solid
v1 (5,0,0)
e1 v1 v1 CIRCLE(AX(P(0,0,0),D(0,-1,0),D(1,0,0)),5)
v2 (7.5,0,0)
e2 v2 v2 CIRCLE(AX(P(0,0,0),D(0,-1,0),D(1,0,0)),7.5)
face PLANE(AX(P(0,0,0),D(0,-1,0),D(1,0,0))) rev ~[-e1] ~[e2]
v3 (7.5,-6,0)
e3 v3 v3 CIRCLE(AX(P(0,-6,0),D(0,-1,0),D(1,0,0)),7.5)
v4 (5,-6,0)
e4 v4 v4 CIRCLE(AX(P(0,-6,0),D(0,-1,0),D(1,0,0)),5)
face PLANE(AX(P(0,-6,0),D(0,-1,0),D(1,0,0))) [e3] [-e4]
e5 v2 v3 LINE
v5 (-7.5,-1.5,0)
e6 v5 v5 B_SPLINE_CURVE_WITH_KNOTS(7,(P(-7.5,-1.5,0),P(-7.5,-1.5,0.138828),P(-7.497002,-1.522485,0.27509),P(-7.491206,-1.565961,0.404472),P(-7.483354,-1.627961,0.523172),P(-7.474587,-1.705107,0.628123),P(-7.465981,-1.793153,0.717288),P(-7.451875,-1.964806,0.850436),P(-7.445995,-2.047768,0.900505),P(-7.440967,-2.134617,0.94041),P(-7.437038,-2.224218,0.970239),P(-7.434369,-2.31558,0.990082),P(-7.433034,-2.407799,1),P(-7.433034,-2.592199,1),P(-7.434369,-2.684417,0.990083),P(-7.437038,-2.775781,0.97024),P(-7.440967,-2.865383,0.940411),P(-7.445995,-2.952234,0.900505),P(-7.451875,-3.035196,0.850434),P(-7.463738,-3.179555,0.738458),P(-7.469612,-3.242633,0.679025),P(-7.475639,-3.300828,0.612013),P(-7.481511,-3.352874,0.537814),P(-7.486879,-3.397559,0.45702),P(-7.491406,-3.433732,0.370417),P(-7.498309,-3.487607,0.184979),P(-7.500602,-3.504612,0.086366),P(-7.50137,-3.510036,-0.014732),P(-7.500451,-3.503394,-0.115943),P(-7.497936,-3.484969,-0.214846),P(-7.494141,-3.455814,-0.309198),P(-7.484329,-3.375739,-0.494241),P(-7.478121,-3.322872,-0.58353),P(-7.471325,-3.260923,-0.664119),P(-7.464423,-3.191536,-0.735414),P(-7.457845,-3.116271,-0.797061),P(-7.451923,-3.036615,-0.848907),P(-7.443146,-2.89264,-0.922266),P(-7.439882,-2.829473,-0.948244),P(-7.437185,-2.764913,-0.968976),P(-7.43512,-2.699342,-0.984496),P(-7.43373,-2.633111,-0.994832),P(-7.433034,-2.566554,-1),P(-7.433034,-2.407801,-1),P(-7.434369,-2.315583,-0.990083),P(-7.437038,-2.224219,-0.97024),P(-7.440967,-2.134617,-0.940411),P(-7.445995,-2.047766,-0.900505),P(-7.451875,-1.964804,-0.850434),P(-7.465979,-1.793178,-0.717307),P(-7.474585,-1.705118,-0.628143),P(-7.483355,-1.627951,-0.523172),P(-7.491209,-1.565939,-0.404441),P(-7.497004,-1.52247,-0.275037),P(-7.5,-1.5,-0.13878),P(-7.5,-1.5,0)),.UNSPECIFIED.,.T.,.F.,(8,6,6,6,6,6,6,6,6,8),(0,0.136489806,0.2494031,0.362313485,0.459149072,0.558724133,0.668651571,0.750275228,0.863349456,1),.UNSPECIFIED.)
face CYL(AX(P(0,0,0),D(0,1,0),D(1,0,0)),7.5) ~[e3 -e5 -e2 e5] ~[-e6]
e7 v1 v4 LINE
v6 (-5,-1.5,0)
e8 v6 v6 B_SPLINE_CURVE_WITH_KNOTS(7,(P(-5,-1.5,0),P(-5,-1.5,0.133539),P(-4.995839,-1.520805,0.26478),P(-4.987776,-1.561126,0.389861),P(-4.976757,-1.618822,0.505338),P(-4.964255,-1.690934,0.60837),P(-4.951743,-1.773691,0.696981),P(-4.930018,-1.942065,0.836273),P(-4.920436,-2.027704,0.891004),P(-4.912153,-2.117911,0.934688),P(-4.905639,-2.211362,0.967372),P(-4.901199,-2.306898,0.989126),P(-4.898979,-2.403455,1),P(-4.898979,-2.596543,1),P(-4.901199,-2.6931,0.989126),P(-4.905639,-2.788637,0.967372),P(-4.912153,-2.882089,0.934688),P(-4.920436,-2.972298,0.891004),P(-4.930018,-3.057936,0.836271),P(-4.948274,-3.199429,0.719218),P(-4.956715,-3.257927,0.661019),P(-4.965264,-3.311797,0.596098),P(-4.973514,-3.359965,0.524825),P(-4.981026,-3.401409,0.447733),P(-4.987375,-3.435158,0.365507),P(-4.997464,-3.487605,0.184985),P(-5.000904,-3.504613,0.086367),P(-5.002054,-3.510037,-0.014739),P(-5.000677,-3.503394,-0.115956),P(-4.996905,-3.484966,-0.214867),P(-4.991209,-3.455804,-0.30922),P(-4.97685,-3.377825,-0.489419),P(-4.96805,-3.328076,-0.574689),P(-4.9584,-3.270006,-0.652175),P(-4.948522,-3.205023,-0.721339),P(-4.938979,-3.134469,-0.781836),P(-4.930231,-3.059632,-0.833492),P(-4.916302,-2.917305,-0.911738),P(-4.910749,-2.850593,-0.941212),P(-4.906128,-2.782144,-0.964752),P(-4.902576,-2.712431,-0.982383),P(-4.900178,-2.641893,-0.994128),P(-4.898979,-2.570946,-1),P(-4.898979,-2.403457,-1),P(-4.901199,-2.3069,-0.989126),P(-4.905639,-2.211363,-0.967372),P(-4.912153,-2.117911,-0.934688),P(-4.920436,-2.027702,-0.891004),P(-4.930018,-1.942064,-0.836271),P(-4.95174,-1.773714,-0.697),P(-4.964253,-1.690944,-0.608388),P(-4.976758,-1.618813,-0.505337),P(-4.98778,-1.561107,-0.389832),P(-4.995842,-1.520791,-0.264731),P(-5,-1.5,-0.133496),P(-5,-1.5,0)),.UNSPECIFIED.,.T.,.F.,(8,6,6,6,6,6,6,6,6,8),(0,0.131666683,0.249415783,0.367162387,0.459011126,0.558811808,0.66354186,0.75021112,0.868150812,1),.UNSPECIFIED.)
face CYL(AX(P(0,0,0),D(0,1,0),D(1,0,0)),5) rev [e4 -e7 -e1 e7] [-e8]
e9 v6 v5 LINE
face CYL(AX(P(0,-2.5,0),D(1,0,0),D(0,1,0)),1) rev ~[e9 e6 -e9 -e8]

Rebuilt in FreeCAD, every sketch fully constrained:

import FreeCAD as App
import Part
import Sketcher

V = App.Vector

doc = App.newDocument("Part")
params = doc.addObject("Spreadsheet::Sheet", "Params")
for row, (alias, value) in enumerate([
    ("sketch1_diameter", "15 mm"),
    ("sketch1_diameter2", "10 mm"),
    ("pad1_length", "6 mm"),
    ("sketch2_diameter", "2 mm"),
    ("pocket1_length", "25 mm"),
], start=1):
    params.set(f"A{row}", alias)
    params.set(f"B{row}", "=" + value)
    params.setAlias(f"B{row}", alias)

body = doc.addObject("PartDesign::Body", "Body")

# Sketch on XZ plane
sketch1 = body.newObject("Sketcher::SketchObject", "Sketch")
sketch1.AttachmentSupport = (doc.getObject("XZ_Plane"), [""])
sketch1.MapMode = "FlatFace"
sketch1.addGeometry([
    Part.Circle(V(0, 0, 0), V(0, 0, 1), 8),
    Part.Circle(V(0, 0, 0), V(0, 0, 1), 5),
], False)
sketch1.addConstraint([
    Sketcher.Constraint("Coincident", 0, 3, -1, 1),
    Sketcher.Constraint("Coincident", 1, 3, -1, 1),
    Sketcher.Constraint("Diameter", 0, 15.0),
    Sketcher.Constraint("Diameter", 1, 10.0),
])
sketch1.setExpression("Constraints[2]", "Params.sketch1_diameter")
sketch1.setExpression("Constraints[3]", "Params.sketch1_diameter2")
pad1 = body.newObject("PartDesign::Pad", "Pad")
pad1.Profile = sketch1
pad1.setExpression("Length", "Params.pad1_length")

# Sketch on YZ plane
sketch2 = body.newObject("Sketcher::SketchObject", "Sketch001")
sketch2.AttachmentSupport = (doc.getObject("YZ_Plane"), [""])
sketch2.MapMode = "FlatFace"
sketch2.addGeometry(Part.Circle(V(-2.5, 0, 0), V(0, 0, 1), 1), False)
sketch2.addConstraint([
    Sketcher.Constraint("PointOnObject", 0, 3, -1),
    Sketcher.Constraint("Diameter", 0, 2.0),
    Sketcher.Constraint("DistanceX", 0, 3, -1, 1, 2.5),
])
sketch2.setExpression("Constraints[1]", "Params.sketch2_diameter")
pocket1 = body.newObject("PartDesign::Pocket", "Pocket")
pocket1.Profile = sketch2
pocket1.setExpression("Length", "Params.pocket1_length")

doc.recompute()
